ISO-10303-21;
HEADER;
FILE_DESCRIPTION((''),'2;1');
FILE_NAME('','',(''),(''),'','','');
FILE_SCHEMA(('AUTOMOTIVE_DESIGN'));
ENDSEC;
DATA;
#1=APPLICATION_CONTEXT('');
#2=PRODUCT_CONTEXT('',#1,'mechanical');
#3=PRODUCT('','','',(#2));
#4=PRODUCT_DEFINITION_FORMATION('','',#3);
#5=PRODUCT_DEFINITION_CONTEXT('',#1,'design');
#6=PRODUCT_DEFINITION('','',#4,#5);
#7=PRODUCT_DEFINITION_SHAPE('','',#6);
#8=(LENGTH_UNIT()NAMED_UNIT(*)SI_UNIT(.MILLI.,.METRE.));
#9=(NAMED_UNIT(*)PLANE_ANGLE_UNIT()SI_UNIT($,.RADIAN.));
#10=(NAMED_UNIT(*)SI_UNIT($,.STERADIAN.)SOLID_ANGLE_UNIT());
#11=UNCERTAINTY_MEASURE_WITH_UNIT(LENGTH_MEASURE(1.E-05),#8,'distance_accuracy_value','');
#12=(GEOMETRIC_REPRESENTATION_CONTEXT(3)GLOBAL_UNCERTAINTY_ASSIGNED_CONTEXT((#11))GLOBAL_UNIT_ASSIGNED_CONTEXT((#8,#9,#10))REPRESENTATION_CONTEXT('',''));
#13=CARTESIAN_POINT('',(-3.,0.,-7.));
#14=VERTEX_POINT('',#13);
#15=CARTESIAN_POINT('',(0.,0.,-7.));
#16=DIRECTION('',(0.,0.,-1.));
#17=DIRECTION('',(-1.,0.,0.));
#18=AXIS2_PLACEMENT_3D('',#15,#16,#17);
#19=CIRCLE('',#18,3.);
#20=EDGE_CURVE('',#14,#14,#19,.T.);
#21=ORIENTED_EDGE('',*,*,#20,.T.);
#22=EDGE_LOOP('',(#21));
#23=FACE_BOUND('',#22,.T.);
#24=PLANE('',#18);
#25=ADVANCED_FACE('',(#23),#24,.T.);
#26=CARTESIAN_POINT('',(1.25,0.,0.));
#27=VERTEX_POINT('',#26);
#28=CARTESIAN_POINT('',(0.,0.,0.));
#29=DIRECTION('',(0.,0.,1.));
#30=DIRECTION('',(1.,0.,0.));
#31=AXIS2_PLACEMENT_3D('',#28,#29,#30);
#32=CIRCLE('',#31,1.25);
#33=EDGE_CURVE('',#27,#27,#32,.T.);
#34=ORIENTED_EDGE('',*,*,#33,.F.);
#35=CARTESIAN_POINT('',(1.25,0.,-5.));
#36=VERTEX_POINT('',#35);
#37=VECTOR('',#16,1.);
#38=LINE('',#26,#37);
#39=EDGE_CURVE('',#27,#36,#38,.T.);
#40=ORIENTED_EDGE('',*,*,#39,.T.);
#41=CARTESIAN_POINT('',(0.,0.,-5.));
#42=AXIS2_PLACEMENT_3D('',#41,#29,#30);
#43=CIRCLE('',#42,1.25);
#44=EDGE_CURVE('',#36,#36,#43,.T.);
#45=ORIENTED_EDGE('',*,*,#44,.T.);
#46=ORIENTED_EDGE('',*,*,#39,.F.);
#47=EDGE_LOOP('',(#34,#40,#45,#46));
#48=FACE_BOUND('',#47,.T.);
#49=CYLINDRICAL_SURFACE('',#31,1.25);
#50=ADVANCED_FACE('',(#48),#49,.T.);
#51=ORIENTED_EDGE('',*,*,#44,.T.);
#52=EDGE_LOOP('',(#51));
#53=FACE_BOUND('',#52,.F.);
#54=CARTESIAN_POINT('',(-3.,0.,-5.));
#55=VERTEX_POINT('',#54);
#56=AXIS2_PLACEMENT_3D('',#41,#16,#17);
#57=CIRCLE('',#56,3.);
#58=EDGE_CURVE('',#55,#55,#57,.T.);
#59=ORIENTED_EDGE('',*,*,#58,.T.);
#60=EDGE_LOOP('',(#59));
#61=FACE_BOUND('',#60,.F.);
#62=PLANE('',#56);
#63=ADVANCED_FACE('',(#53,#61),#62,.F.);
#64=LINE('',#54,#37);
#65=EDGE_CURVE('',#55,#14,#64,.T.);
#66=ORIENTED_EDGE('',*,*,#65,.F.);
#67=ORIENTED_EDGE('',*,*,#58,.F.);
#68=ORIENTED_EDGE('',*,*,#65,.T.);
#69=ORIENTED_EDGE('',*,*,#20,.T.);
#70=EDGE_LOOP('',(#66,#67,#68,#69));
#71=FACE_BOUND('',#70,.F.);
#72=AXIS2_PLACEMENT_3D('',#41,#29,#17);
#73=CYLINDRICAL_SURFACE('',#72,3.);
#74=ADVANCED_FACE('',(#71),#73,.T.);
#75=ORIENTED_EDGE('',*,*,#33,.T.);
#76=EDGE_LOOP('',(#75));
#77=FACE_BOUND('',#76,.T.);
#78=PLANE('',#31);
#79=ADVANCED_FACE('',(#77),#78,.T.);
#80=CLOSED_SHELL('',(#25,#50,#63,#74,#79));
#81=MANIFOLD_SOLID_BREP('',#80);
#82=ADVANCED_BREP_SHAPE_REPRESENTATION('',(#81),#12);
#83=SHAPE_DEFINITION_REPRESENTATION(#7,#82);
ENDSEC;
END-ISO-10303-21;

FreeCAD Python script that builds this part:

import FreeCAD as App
import Part
import Sketcher
from FreeCAD import Vector

doc = App.newDocument("Part")
body = doc.addObject("PartDesign::Body", "Body")

sketch1 = doc.addObject("Sketcher::SketchObject", "Sketch")
body.addObject(sketch1)
sketch1.AttachmentSupport = (doc.XY_Plane, [""])
sketch1.MapMode = "FlatFace"
sketch1.addGeometry(Part.Circle(Vector(0, 0, 0), Vector(0, 0, 1), 1.25), False)
sketch1.addConstraint(Sketcher.Constraint("Coincident", 0, 3, -1, 1))
sketch1.addConstraint(Sketcher.Constraint("Diameter", 0, 2.5))
pad1 = doc.addObject("PartDesign::Pad", "Pad")
body.addObject(pad1)
pad1.Profile = sketch1
pad1.Length = 5
pad1.Reversed = True

sketch2 = doc.addObject("Sketcher::SketchObject", "Sketch001")
body.addObject(sketch2)
sketch2.AttachmentSupport = (doc.XY_Plane, [""])
sketch2.MapMode = "FlatFace"
sketch2.AttachmentOffset = App.Placement(Vector(0, 0, -5), App.Rotation())
sketch2.addGeometry(Part.Circle(Vector(0, 0, 0), Vector(0, 0, 1), 3), False)
sketch2.addConstraint(Sketcher.Constraint("Coincident", 0, 3, -1, 1))
sketch2.addConstraint(Sketcher.Constraint("Diameter", 0, 6.0))
pad2 = doc.addObject("PartDesign::Pad", "Pad001")
body.addObject(pad2)
pad2.Profile = sketch2
pad2.Length = 2
pad2.Reversed = True

doc.recompute()
